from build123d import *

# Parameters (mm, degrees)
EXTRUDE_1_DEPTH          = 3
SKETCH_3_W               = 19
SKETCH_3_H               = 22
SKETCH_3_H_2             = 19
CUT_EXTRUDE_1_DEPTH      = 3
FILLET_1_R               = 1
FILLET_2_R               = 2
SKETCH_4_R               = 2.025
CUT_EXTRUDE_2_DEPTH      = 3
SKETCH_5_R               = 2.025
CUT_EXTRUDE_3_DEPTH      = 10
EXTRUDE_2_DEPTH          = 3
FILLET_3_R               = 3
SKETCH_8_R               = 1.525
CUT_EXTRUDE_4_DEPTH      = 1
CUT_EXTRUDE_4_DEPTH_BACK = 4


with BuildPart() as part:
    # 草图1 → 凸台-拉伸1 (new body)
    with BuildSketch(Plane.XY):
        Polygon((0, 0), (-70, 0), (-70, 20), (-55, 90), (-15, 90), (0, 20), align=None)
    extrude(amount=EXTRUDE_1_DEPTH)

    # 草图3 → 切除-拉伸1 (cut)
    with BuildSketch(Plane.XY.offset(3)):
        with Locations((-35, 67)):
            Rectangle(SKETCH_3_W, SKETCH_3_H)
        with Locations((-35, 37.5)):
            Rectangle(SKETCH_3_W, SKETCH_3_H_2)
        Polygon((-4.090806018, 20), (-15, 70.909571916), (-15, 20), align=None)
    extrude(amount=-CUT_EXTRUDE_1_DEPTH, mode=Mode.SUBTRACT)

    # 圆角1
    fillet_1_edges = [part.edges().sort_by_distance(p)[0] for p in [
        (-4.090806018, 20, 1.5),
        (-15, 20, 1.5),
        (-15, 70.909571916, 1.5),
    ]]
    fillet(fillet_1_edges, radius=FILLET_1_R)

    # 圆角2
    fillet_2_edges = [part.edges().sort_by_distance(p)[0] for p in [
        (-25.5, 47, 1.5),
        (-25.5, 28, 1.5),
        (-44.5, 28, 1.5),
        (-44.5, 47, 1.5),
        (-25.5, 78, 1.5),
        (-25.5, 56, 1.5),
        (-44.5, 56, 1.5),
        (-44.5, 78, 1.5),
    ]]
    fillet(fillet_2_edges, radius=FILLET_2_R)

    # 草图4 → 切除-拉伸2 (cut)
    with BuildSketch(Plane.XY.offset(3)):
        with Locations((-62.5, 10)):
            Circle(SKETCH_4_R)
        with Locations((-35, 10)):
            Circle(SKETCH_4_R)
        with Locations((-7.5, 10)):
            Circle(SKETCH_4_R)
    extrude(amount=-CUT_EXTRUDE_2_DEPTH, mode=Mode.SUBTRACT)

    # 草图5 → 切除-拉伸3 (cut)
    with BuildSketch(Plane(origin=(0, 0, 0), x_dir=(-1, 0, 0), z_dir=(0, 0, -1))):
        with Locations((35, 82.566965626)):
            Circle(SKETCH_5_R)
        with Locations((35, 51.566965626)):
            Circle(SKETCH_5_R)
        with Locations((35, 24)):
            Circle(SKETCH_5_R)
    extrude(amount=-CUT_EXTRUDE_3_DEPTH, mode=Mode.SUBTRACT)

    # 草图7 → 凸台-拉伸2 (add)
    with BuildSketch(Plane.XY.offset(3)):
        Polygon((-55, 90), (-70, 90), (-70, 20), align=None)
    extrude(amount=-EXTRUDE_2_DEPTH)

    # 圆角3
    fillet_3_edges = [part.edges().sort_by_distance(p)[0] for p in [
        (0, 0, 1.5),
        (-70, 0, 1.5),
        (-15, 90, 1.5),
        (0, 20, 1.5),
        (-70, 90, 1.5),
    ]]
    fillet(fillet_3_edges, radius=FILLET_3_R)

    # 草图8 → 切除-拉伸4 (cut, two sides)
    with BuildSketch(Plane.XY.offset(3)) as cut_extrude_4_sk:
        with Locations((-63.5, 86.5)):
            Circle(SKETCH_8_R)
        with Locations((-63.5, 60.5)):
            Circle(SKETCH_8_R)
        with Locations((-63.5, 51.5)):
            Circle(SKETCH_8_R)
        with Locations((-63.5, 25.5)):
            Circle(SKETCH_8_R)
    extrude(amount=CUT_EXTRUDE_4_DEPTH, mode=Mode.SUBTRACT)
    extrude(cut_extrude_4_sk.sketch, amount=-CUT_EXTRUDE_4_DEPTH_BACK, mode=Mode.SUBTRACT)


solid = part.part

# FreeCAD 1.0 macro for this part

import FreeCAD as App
import Part
import Sketcher


def edges_at(feature, points):
    """Names of the edges that pass closest to the given points."""
    edges = feature.Shape.Edges
    near = lambda p: min(range(len(edges)), key=lambda i: edges[i].distToShape(Part.Vertex(*p))[0])
    return sorted({f"Edge{near(p) + 1}" for p in points})

doc = App.newDocument("Part")
body = doc.addObject("PartDesign::Body", "Body")

# Sketch on XY plane
sketch1 = body.newObject("Sketcher::SketchObject", "Sketch")
sketch1.AttachmentSupport = (doc.getObject("XY_Plane"), [""])
sketch1.MapMode = "FlatFace"
sketch1.addGeometry([
    Part.LineSegment(App.Vector(-70, 0, 0), App.Vector(0, 0, 0)),  # 0
    Part.LineSegment(App.Vector(0, 0, 0), App.Vector(0, 20, 0)),  # 1
    Part.LineSegment(App.Vector(0, 20, 0), App.Vector(-15, 90, 0)),  # 2
    Part.LineSegment(App.Vector(-15, 90, 0), App.Vector(-55, 90, 0)),  # 3
    Part.LineSegment(App.Vector(-55, 90, 0), App.Vector(-70, 20, 0)),  # 4
    Part.LineSegment(App.Vector(-70, 20, 0), App.Vector(-70, 0, 0)),  # 5
], False)
sketch1.addConstraint([
    Sketcher.Constraint("Coincident", 0, 2, 1, 1),
    Sketcher.Constraint("Coincident", 1, 2, 2, 1),
    Sketcher.Constraint("Coincident", 2, 2, 3, 1),
    Sketcher.Constraint("Coincident", 3, 2, 4, 1),
    Sketcher.Constraint("Coincident", 4, 2, 5, 1),
    Sketcher.Constraint("Coincident", 5, 2, 0, 1),
    Sketcher.Constraint("Horizontal", 0),
    Sketcher.Constraint("Vertical", 1),
    Sketcher.Constraint("Horizontal", 3),
    Sketcher.Constraint("Vertical", 5),
    Sketcher.Constraint("Coincident", 0, 2, -1, 1),
    Sketcher.Constraint("Horizontal", 1, 2, 4, 2),
    Sketcher.Constraint("Equal", 2, 4),
    Sketcher.Constraint("DistanceX", 0, 1, 0, 2, 70.0),
    Sketcher.Constraint("DistanceX", 3, 2, 3, 1, 40.0),
    Sketcher.Constraint("DistanceY", 1, 1, 1, 2, 20.0),
    Sketcher.Constraint("DistanceY", -1, 1, 2, 2, 90.0),
])
pad1 = body.newObject("PartDesign::Pad", "Pad")
pad1.Profile = sketch1
pad1.Length = 3

# Sketch on XY plane
sketch2 = body.newObject("Sketcher::SketchObject", "Sketch001")
sketch2.AttachmentSupport = (doc.getObject("XY_Plane"), [""])
sketch2.MapMode = "FlatFace"
sketch2.AttachmentOffset = App.Placement(App.Vector(0, 0, 3), App.Rotation())
sketch2.addGeometry([
    Part.LineSegment(App.Vector(-44, 78, 0), App.Vector(-44, 56, 0)),  # 0
    Part.LineSegment(App.Vector(-44, 56, 0), App.Vector(-26, 56, 0)),  # 1
    Part.LineSegment(App.Vector(-26, 56, 0), App.Vector(-26, 78, 0)),  # 2
    Part.LineSegment(App.Vector(-26, 78, 0), App.Vector(-44, 78, 0)),  # 3
    Part.LineSegment(App.Vector(-44, 47, 0), App.Vector(-44, 28, 0)),  # 4
    Part.LineSegment(App.Vector(-44, 28, 0), App.Vector(-26, 28, 0)),  # 5
    Part.LineSegment(App.Vector(-26, 28, 0), App.Vector(-26, 47, 0)),  # 6
    Part.LineSegment(App.Vector(-26, 47, 0), App.Vector(-44, 47, 0)),  # 7
    Part.LineSegment(App.Vector(-4, 20, 0), App.Vector(-15, 71, 0)),  # 8
    Part.LineSegment(App.Vector(-15, 71, 0), App.Vector(-15, 20, 0)),  # 9
    Part.LineSegment(App.Vector(-15, 20, 0), App.Vector(-4, 20, 0)),  # 10
], False)
sketch2.addConstraint([
    Sketcher.Constraint("Coincident", 0, 2, 1, 1),
    Sketcher.Constraint("Coincident", 1, 2, 2, 1),
    Sketcher.Constraint("Coincident", 2, 2, 3, 1),
    Sketcher.Constraint("Coincident", 3, 2, 0, 1),
    Sketcher.Constraint("Coincident", 4, 2, 5, 1),
    Sketcher.Constraint("Coincident", 5, 2, 6, 1),
    Sketcher.Constraint("Coincident", 6, 2, 7, 1),
    Sketcher.Constraint("Coincident", 7, 2, 4, 1),
    Sketcher.Constraint("Coincident", 8, 2, 9, 1),
    Sketcher.Constraint("Coincident", 9, 2, 10, 1),
    Sketcher.Constraint("Coincident", 10, 2, 8, 1),
    Sketcher.Constraint("Vertical", 0),
    Sketcher.Constraint("Horizontal", 1),
    Sketcher.Constraint("Vertical", 2),
    Sketcher.Constraint("Horizontal", 3),
    Sketcher.Constraint("Vertical", 4),
    Sketcher.Constraint("Horizontal", 5),
    Sketcher.Constraint("Vertical", 6),
    Sketcher.Constraint("Horizontal", 7),
    Sketcher.Constraint("Vertical", 9),
    Sketcher.Constraint("Horizontal", 10),
    Sketcher.Constraint("Vertical", 3, 2, 4, 2),
    Sketcher.Constraint("Vertical", 2, 2, 5, 2),
    Sketcher.Constraint("Equal", 7, 4),
    Sketcher.Constraint("DistanceX", 1, 1, 1, 2, 19.0),
    Sketcher.Constraint("DistanceY", 0, 2, 0, 1, 22.0),
    Sketcher.Constraint("DistanceY", -1, 1, 0, 2, 56.0),
    Sketcher.Constraint("DistanceY", -1, 1, 4, 2, 28.0),
    Sketcher.Constraint("DistanceX", 8, 2, -1, 1, 15.0),
    Sketcher.Constraint("DistanceY", -1, 1, 9, 2, 20.0),
    Sketcher.Constraint("DistanceX", 0, 2, -1, 1, 44.5),
    Sketcher.Constraint("DistanceY", 9, 2, 9, 1, 50.909572),
    Sketcher.Constraint("DistanceX", 10, 1, 10, 2, 10.909194),
])
pocket1 = body.newObject("PartDesign::Pocket", "Pocket")
pocket1.Profile = sketch2
pocket1.Length = 3
doc.recompute()

fillet = body.newObject("PartDesign::Fillet", "Fillet")
fillet.Base = (pocket1, edges_at(pocket1, [(-4.091, 20, 1.5), (-15, 20, 1.5), (-15, 70.91, 1.5)]))
fillet.Radius = 1
doc.recompute()

fillet2 = body.newObject("PartDesign::Fillet", "Fillet001")
fillet2.Base = (fillet, edges_at(fillet, [
    (-25.5, 47, 1.5),
    (-25.5, 28, 1.5),
    (-44.5, 28, 1.5),
    (-44.5, 47, 1.5),
    (-25.5, 78, 1.5),
    (-25.5, 56, 1.5),
    (-44.5, 56, 1.5),
    (-44.5, 78, 1.5),
]))
fillet2.Radius = 2

# Sketch on XY plane
sketch3 = body.newObject("Sketcher::SketchObject", "Sketch002")
sketch3.AttachmentSupport = (doc.getObject("XY_Plane"), [""])
sketch3.MapMode = "FlatFace"
sketch3.AttachmentOffset = App.Placement(App.Vector(0, 0, 3), App.Rotation())
sketch3.addGeometry([
    Part.Circle(App.Vector(-62.5, 10, 0), App.Vector(0, 0, 1), 2),
    Part.Circle(App.Vector(-35, 10, 0), App.Vector(0, 0, 1), 2),
    Part.Circle(App.Vector(-7.5, 10, 0), App.Vector(0, 0, 1), 2),
], False)
sketch3.addConstraint([
    Sketcher.Constraint("Equal", 0, 1),
    Sketcher.Constraint("Equal", 1, 2),
    Sketcher.Constraint("Horizontal", 0, 3, 1, 3),
    Sketcher.Constraint("Horizontal", 1, 3, 2, 3),
    Sketcher.Constraint("Diameter", 0, 4.05),
    Sketcher.Constraint("DistanceY", -1, 1, 0, 3, 10.0),
    Sketcher.Constraint("DistanceX", 1, 3, -1, 1, 35.0),
    Sketcher.Constraint("DistanceX", 0, 3, 2, 3, 55.0),
    Sketcher.Constraint("DistanceX", 0, 3, -1, 1, 62.5),
])
pocket2 = body.newObject("PartDesign::Pocket", "Pocket001")
pocket2.Profile = sketch3
pocket2.Length = 3

# Sketch on XY plane
sketch4 = body.newObject("Sketcher::SketchObject", "Sketch003")
sketch4.AttachmentSupport = (doc.getObject("XY_Plane"), [""])
sketch4.MapMode = "FlatFace"
sketch4.addGeometry([
    Part.Circle(App.Vector(-35, 82.6, 0), App.Vector(0, 0, 1), 2),
    Part.Circle(App.Vector(-35, 51.6, 0), App.Vector(0, 0, 1), 2),
    Part.Circle(App.Vector(-35, 24, 0), App.Vector(0, 0, 1), 2),
], False)
sketch4.addConstraint([
    Sketcher.Constraint("Equal", 0, 1),
    Sketcher.Constraint("Equal", 1, 2),
    Sketcher.Constraint("Vertical", 0, 3, 1, 3),
    Sketcher.Constraint("Vertical", 1, 3, 2, 3),
    Sketcher.Constraint("Diameter", 0, 4.05),
    Sketcher.Constraint("DistanceX", 0, 3, -1, 1, 35.0),
    Sketcher.Constraint("DistanceY", -1, 1, 2, 3, 24.0),
    Sketcher.Constraint("DistanceY", 1, 3, 0, 3, 31.0),
    Sketcher.Constraint("DistanceY", -1, 1, 0, 3, 82.566966),
])
pocket3 = body.newObject("PartDesign::Pocket", "Pocket002")
pocket3.Profile = sketch4
pocket3.Length = 10
pocket3.Reversed = True

# Sketch on XY plane
sketch5 = body.newObject("Sketcher::SketchObject", "Sketch004")
sketch5.AttachmentSupport = (doc.getObject("XY_Plane"), [""])
sketch5.MapMode = "FlatFace"
sketch5.AttachmentOffset = App.Placement(App.Vector(0, 0, 3), App.Rotation())
sketch5.addGeometry([
    Part.LineSegment(App.Vector(-55, 90, 0), App.Vector(-70, 90, 0)),
    Part.LineSegment(App.Vector(-70, 90, 0), App.Vector(-70, 20, 0)),
    Part.LineSegment(App.Vector(-70, 20, 0), App.Vector(-55, 90, 0)),
], False)
sketch5.addConstraint([
    Sketcher.Constraint("Coincident", 0, 2, 1, 1),
    Sketcher.Constraint("Coincident", 1, 2, 2, 1),
    Sketcher.Constraint("Coincident", 2, 2, 0, 1),
    Sketcher.Constraint("Horizontal", 0),
    Sketcher.Constraint("Vertical", 1),
    Sketcher.Constraint("DistanceX", 0, 2, 0, 1, 15.0),
    Sketcher.Constraint("DistanceY", 1, 2, 1, 1, 70.0),
    Sketcher.Constraint("DistanceX", 0, 2, -1, 1, 70.0),
    Sketcher.Constraint("DistanceY", -1, 1, 0, 2, 90.0),
])
pad2 = body.newObject("PartDesign::Pad", "Pad001")
pad2.Profile = sketch5
pad2.Length = 3
pad2.Reversed = True
doc.recompute()

fillet3 = body.newObject("PartDesign::Fillet", "Fillet002")
fillet3.Base = (pad2, edges_at(pad2, [
    (0, 0, 1.5),
    (-70, 0, 1.5),
    (-15, 90, 1.5),
    (0, 20, 1.5),
    (-70, 90, 1.5),
]))
fillet3.Radius = 3

# Sketch on XY plane
sketch6 = body.newObject("Sketcher::SketchObject", "Sketch005")
sketch6.AttachmentSupport = (doc.getObject("XY_Plane"), [""])
sketch6.MapMode = "FlatFace"
sketch6.AttachmentOffset = App.Placement(App.Vector(0, 0, 3), App.Rotation())
sketch6.addGeometry([
    Part.Circle(App.Vector(-63.5, 86.5, 0), App.Vector(0, 0, 1), 1.5),
    Part.Circle(App.Vector(-63.5, 60.5, 0), App.Vector(0, 0, 1), 1.5),
    Part.Circle(App.Vector(-63.5, 51.5, 0), App.Vector(0, 0, 1), 1.5),
    Part.Circle(App.Vector(-63.5, 25.5, 0), App.Vector(0, 0, 1), 1.5),
], False)
sketch6.addConstraint([
    Sketcher.Constraint("Equal", 0, 1),
    Sketcher.Constraint("Equal", 1, 2),
    Sketcher.Constraint("Equal", 2, 3),
    Sketcher.Constraint("Vertical", 0, 3, 1, 3),
    Sketcher.Constraint("Vertical", 1, 3, 2, 3),
    Sketcher.Constraint("Vertical", 2, 3, 3, 3),
    Sketcher.Constraint("Diameter", 0, 3.05),
    Sketcher.Constraint("DistanceY", 1, 3, 0, 3, 26.0),
    Sketcher.Constraint("DistanceY", 2, 3, 1, 3, 9.0),
    Sketcher.Constraint("DistanceY", 3, 3, 2, 3, 26.0),
    Sketcher.Constraint("DistanceX", 0, 3, -1, 1, 63.5),
    Sketcher.Constraint("DistanceY", -1, 1, 0, 3, 86.5),
])
pocket4 = body.newObject("PartDesign::Pocket", "Pocket003")
pocket4.Profile = sketch6
pocket4.Type = "ThroughAll"
pocket4.Midplane = True

doc.recompute()
